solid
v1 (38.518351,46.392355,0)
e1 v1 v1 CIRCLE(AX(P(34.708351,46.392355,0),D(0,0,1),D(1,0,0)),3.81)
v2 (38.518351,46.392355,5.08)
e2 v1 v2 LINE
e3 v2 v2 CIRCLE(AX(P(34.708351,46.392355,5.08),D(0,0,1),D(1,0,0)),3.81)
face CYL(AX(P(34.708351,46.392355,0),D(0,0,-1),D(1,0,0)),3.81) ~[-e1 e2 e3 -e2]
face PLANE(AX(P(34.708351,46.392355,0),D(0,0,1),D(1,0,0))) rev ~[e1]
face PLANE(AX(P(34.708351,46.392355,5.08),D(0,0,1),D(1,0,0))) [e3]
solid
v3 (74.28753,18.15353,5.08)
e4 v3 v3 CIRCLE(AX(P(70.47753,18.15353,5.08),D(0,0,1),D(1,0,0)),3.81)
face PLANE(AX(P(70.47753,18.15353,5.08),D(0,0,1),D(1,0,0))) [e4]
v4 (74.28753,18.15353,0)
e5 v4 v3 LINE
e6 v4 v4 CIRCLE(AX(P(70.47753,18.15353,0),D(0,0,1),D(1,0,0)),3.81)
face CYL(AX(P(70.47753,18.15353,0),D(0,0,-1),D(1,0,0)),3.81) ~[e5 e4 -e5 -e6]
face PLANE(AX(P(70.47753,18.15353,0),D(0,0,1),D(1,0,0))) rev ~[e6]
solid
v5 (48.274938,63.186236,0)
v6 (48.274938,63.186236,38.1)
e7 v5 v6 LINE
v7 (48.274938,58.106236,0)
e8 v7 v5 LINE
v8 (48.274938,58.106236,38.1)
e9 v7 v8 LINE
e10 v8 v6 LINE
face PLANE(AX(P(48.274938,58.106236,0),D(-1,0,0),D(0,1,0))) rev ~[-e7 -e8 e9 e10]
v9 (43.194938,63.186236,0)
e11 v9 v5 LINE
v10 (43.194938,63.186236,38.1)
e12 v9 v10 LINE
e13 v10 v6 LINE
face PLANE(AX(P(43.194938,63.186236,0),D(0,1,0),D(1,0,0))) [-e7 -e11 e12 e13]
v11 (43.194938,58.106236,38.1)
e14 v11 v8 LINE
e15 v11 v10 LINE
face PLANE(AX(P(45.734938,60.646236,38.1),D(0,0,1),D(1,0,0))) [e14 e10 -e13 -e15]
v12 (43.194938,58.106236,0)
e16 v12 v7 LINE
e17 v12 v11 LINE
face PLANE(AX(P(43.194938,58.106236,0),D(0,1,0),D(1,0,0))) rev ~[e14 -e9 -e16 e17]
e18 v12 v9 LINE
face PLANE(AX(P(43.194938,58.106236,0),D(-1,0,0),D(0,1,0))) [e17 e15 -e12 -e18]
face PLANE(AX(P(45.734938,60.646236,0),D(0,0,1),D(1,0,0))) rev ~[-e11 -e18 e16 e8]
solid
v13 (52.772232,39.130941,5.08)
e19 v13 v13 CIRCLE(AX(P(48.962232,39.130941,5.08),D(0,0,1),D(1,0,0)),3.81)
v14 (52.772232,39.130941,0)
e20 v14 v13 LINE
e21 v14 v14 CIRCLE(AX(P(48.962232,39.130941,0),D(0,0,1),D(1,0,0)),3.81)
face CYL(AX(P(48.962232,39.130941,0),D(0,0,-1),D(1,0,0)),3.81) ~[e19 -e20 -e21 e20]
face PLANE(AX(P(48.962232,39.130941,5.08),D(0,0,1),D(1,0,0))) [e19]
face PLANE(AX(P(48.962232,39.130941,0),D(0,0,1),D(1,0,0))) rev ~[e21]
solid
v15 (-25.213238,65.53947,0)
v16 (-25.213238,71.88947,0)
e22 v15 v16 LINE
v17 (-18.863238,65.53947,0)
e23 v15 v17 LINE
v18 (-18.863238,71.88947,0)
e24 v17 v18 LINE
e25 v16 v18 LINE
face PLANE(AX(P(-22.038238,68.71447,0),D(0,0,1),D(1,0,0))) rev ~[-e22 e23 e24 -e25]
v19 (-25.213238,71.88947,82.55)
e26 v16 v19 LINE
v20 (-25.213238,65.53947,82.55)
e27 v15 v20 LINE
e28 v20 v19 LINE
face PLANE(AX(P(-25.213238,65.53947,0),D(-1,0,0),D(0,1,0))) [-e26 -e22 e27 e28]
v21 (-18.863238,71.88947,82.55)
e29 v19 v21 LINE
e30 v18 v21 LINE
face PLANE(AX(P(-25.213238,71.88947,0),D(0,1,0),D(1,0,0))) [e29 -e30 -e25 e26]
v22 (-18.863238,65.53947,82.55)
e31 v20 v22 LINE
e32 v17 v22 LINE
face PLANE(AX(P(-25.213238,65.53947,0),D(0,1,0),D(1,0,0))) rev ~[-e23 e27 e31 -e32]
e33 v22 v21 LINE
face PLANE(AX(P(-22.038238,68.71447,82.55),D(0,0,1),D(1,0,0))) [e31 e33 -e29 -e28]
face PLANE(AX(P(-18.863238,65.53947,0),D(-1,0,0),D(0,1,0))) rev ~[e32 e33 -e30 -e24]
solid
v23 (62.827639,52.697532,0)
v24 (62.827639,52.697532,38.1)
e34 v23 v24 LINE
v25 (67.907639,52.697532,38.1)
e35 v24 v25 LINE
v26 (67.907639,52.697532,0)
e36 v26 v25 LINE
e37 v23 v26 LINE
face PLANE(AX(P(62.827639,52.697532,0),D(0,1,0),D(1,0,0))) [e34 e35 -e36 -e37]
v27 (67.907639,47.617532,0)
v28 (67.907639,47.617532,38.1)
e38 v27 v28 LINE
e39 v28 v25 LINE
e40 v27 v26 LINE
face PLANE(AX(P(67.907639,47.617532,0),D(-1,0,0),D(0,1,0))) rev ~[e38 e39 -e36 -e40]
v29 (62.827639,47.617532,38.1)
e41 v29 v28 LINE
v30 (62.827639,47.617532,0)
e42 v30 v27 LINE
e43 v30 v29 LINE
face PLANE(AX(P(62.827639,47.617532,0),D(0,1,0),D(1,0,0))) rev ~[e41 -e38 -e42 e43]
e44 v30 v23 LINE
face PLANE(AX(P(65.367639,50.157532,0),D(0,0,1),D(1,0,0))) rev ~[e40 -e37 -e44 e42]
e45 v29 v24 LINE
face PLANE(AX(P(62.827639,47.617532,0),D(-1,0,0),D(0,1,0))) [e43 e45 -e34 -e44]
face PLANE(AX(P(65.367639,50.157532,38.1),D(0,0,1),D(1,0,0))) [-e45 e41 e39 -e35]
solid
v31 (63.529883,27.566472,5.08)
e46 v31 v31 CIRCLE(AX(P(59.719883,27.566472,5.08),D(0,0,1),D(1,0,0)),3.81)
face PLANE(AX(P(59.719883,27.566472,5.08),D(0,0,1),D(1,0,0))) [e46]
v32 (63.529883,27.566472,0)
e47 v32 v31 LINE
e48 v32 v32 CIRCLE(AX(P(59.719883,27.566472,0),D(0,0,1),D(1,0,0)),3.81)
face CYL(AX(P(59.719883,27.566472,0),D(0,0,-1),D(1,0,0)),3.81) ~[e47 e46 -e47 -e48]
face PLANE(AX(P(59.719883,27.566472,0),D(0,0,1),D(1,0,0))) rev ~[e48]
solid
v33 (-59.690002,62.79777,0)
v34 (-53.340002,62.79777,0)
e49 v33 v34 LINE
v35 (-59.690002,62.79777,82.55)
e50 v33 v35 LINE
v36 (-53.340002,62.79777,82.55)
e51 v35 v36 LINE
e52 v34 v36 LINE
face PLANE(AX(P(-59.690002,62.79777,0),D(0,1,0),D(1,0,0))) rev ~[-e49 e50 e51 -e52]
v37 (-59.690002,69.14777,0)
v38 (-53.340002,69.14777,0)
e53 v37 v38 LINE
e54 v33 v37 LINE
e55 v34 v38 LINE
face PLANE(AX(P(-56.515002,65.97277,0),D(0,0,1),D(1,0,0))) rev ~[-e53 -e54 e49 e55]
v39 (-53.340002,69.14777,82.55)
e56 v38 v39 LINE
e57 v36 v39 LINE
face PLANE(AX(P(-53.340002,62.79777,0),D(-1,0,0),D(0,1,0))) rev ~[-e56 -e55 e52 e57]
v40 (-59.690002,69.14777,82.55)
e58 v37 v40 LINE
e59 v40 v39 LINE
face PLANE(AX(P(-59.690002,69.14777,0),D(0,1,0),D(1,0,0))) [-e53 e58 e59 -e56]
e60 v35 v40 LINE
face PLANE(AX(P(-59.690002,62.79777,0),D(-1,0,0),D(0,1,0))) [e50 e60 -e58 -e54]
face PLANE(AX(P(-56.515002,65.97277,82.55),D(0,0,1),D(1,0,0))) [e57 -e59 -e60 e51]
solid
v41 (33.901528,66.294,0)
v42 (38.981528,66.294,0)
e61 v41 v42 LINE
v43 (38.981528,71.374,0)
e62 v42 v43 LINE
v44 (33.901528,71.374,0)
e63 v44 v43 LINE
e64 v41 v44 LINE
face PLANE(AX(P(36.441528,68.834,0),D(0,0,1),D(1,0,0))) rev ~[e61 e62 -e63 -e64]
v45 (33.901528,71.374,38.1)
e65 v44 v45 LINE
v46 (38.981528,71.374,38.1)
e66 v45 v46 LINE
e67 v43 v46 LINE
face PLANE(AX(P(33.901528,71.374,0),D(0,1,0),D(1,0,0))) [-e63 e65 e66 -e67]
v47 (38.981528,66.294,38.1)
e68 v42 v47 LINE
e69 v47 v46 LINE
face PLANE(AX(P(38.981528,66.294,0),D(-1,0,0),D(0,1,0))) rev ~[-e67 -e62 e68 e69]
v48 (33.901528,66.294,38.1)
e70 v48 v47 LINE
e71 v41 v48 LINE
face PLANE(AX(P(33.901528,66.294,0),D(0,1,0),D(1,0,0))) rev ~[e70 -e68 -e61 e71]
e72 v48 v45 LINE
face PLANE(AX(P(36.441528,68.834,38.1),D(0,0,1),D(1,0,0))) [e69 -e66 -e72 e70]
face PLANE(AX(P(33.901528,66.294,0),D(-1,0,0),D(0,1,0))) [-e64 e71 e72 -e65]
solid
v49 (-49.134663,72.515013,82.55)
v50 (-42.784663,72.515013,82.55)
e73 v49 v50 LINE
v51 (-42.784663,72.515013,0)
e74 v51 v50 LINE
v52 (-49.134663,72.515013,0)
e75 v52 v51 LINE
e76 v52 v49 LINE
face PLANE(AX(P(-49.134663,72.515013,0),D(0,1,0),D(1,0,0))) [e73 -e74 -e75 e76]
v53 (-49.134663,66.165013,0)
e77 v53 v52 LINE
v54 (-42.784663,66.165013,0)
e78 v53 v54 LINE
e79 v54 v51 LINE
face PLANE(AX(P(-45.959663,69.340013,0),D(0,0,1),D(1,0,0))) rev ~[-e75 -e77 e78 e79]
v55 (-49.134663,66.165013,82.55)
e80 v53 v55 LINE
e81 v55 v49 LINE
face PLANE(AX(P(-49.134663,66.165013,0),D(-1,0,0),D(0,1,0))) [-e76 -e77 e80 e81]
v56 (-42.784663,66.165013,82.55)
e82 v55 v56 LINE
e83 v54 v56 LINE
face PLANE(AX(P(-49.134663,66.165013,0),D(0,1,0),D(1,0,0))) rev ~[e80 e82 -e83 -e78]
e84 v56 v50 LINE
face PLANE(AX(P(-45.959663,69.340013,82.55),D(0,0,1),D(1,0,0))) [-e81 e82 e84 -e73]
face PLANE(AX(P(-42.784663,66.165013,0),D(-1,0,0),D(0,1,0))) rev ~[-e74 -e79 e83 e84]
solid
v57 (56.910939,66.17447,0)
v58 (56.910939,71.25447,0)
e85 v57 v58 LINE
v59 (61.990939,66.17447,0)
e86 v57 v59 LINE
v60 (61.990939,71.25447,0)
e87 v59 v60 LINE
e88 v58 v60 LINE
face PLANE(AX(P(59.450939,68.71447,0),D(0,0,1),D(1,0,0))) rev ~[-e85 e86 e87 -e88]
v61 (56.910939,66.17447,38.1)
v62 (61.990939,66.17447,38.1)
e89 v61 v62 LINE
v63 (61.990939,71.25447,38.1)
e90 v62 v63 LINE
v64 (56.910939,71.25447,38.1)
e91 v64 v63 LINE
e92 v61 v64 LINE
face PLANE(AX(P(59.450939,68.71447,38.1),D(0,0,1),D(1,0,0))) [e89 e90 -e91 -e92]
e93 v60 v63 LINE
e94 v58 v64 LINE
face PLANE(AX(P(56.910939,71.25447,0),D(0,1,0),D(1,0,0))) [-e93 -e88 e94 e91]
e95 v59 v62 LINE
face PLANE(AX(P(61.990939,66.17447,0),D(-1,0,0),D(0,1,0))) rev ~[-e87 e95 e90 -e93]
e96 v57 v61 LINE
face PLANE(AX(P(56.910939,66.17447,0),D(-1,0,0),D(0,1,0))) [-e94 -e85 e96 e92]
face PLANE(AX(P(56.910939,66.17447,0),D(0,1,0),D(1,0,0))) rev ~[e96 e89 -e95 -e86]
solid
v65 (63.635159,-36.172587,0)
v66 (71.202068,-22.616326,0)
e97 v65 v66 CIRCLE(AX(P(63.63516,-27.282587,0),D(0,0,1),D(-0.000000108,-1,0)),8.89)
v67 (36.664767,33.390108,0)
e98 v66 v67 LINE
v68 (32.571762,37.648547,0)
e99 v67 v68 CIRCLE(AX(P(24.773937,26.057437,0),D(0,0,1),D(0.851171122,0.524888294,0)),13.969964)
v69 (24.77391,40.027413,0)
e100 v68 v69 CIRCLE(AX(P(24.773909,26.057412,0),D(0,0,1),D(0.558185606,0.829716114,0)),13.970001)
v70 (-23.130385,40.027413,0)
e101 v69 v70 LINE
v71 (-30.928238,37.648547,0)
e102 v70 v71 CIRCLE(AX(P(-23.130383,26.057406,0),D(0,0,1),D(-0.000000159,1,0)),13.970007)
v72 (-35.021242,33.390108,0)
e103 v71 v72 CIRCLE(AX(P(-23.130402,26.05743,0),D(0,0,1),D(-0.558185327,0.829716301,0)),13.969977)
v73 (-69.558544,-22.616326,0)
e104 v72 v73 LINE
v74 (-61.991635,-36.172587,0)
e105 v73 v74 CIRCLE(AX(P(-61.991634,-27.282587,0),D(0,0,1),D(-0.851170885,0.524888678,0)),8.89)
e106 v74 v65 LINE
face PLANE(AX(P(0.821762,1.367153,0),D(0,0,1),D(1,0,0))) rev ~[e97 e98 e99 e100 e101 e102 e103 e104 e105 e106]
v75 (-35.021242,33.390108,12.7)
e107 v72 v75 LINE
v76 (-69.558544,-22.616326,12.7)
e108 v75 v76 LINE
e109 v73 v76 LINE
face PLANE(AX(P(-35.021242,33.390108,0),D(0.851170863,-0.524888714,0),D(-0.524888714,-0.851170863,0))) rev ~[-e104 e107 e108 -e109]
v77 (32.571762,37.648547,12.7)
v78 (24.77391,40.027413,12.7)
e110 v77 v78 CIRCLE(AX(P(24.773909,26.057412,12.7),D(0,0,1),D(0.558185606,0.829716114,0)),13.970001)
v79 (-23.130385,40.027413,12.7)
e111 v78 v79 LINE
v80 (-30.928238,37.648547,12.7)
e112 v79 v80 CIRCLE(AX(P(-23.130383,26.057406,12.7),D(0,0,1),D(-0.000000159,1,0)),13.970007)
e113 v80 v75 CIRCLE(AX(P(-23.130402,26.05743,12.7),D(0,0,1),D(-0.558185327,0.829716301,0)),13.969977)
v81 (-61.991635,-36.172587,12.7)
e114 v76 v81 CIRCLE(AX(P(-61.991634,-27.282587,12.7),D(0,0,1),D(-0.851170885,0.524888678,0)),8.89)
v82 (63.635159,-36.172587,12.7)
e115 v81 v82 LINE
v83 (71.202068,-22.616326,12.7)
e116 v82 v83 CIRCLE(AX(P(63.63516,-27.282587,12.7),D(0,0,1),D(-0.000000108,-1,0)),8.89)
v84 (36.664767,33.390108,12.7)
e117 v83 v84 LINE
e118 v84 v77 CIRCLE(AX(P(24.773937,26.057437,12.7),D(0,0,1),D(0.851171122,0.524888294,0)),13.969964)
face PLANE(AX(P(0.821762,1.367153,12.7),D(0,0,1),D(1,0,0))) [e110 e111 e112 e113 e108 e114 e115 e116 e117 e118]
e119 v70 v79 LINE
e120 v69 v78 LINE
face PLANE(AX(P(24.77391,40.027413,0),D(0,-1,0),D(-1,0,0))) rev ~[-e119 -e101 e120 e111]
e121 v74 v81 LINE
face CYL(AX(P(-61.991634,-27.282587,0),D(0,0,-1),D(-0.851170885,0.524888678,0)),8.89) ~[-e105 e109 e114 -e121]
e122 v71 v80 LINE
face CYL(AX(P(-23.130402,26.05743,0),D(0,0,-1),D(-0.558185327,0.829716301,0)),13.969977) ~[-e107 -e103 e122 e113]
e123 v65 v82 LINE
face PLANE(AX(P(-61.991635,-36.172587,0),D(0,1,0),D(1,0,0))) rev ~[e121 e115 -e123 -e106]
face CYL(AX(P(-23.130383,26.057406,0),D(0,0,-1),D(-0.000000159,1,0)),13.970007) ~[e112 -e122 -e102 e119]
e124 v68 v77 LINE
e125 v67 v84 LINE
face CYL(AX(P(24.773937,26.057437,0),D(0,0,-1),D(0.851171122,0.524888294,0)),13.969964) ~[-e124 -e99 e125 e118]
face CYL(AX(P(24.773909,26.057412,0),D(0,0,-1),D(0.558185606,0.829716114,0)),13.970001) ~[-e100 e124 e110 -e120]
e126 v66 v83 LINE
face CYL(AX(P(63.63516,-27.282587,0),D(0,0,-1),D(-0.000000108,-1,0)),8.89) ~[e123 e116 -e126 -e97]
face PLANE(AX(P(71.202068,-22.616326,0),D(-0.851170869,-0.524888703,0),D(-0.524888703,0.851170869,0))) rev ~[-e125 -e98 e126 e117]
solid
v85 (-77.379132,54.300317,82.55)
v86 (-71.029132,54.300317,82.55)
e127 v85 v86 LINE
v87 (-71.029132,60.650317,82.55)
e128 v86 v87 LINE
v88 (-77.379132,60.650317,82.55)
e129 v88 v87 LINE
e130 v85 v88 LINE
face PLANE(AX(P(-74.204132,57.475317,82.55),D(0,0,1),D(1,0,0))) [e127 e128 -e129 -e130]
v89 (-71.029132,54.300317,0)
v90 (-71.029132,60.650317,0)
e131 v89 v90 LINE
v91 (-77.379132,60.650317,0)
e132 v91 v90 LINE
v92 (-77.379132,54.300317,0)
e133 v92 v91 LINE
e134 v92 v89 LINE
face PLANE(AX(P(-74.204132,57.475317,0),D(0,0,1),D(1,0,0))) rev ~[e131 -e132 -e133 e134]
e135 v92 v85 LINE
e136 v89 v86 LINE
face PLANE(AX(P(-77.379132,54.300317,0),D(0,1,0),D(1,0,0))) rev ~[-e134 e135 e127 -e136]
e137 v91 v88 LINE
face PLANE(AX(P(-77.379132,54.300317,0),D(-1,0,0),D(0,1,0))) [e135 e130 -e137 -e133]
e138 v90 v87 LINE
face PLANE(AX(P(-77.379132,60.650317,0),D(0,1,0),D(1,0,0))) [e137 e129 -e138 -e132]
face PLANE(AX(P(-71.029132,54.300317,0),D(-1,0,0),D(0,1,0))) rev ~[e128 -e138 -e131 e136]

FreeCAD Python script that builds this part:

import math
import FreeCAD as App
import Part
import Sketcher

V = App.Vector
Q = App.Units.Quantity


def add_polygon(sketch, points):
    """Adds a closed chain of lines whose ends are joined by coincident constraints."""
    first, n = sketch.GeometryCount, len(points)
    for a, b in zip(points, points[1:] + points[:1]):
        sketch.addGeometry(Part.LineSegment(App.Vector(*a, 0), App.Vector(*b, 0)), False)
    for i in range(n):
        sketch.addConstraint(Sketcher.Constraint("Coincident", first + i, 2, first + (i + 1) % n, 1))

doc = App.newDocument("Part")
body = doc.addObject("PartDesign::Body", "Body")

sketch1 = doc.addObject("Sketcher::SketchObject", "Sketch")
body.addObject(sketch1)
sketch1.AttachmentSupport = (doc.XY_Plane, [""])
sketch1.MapMode = "FlatFace"
sketch1.addGeometry([
    Part.LineSegment(V(24.77391, 40.027413, 0), V(-23.130385, 40.027413, 0)),
    Part.ArcOfCircle(Part.Circle(V(-23.130383, 26.057406, 0), V(0, 0, 1), 13.970007), math.radians(90.000009), math.radians(123.930405)),
    Part.ArcOfCircle(Part.Circle(V(-23.130402, 26.05743, 0), V(0, 0, 1), 13.969977), math.radians(123.930394), math.radians(148.339271)),
    Part.LineSegment(V(-35.021242, 33.390108, 0), V(-69.558544, -22.616326, 0)),
    Part.ArcOfCircle(Part.Circle(V(-61.991634, -27.282587, 0), V(0, 0, 1), 8.89), math.radians(148.339251), math.radians(269.999997)),
    Part.LineSegment(V(-61.991635, -36.172587, 0), V(63.635159, -36.172587, 0)),
    Part.ArcOfCircle(Part.Circle(V(63.63516, -27.282587, 0), V(0, 0, 1), 8.89), math.radians(-90.000006), math.radians(31.660759)),
    Part.LineSegment(V(71.202068, -22.616326, 0), V(36.664767, 33.390108, 0)),
    Part.ArcOfCircle(Part.Circle(V(24.773937, 26.057437, 0), V(0, 0, 1), 13.969964), math.radians(31.660724), math.radians(56.069626)),
    Part.ArcOfCircle(Part.Circle(V(24.773909, 26.057412, 0), V(0, 0, 1), 13.970001), math.radians(56.069587), math.radians(89.999995)),
], False)
sketch1.addConstraint([
    Sketcher.Constraint("Tangent", 0, 2, 1, 1),
    Sketcher.Constraint("Tangent", 1, 2, 2, 1),
    Sketcher.Constraint("Tangent", 2, 2, 3, 1),
    Sketcher.Constraint("Tangent", 3, 2, 4, 1),
    Sketcher.Constraint("Tangent", 4, 2, 5, 1),
    Sketcher.Constraint("Tangent", 5, 2, 6, 1),
    Sketcher.Constraint("Tangent", 6, 2, 7, 1),
    Sketcher.Constraint("Tangent", 7, 2, 8, 1),
    Sketcher.Constraint("Tangent", 8, 2, 9, 1),
    Sketcher.Constraint("Tangent", 9, 2, 0, 1),
    Sketcher.Constraint("Horizontal", 0),
    Sketcher.Constraint("Horizontal", 5),
    Sketcher.Constraint("Equal", 4, 6),
    Sketcher.Constraint("Horizontal", 3, 2, 6, 2),
    Sketcher.Constraint("Horizontal", 2, 2, 7, 2),
    Sketcher.Constraint("Horizontal", 1, 2, 8, 2),
    Sketcher.Constraint("Radius", 4, Q("0.35 in")),
    Sketcher.Constraint("Radius", 9, Q("0.55 in")),
    Sketcher.Constraint("DistanceY", 6, 3, 9, 3, Q("2.1 in")),
    Sketcher.Constraint("Radius", 1, 13.970007),
    Sketcher.Constraint("Radius", 2, 13.969977),
    Sketcher.Constraint("DistanceX", 3, 2, 2, 2, 34.537302),
    Sketcher.Constraint("DistanceX", 0, 2, 0, 1, 47.904295),
    Sketcher.Constraint("DistanceY", -1, 1, 2, 3, 26.05743),
    Sketcher.Constraint("DistanceX", -1, 1, 6, 3, 63.63516),
    Sketcher.Constraint("DistanceX", 1, 2, -1, 1, 30.928238),
])
pad1 = doc.addObject("PartDesign::Pad", "Pad")
body.addObject(pad1)
pad1.Profile = sketch1
pad1.Length = Q("0.5 in")
body2 = doc.addObject("PartDesign::Body", "Body001")
body2.AllowCompound = True

sketch2 = doc.addObject("Sketcher::SketchObject", "Sketch001")
body2.addObject(sketch2)
sketch2.AttachmentSupport = (doc.getObject("XY_Plane001"), [""])
sketch2.MapMode = "FlatFace"
add_polygon(sketch2, [(-59.690002, 69.14777), (-59.690002, 62.79777), (-53.340002, 62.79777), (-53.340002, 69.14777)])
add_polygon(sketch2, [(-49.134663, 72.515013), (-49.134663, 66.165013), (-42.784663, 66.165013), (-42.784663, 72.515013)])
add_polygon(sketch2, [(-77.379132, 60.650317), (-77.379132, 54.300317), (-71.029132, 54.300317), (-71.029132, 60.650317)])
add_polygon(sketch2, [(-25.213238, 71.88947), (-25.213238, 65.53947), (-18.863238, 65.53947), (-18.863238, 71.88947)])
sketch2.addConstraint([
    Sketcher.Constraint("Vertical", 0),
    Sketcher.Constraint("Horizontal", 1),
    Sketcher.Constraint("Vertical", 2),
    Sketcher.Constraint("Horizontal", 3),
    Sketcher.Constraint("Vertical", 4),
    Sketcher.Constraint("Horizontal", 5),
    Sketcher.Constraint("Vertical", 6),
    Sketcher.Constraint("Horizontal", 7),
    Sketcher.Constraint("Vertical", 8),
    Sketcher.Constraint("Horizontal", 9),
    Sketcher.Constraint("Vertical", 10),
    Sketcher.Constraint("Horizontal", 11),
    Sketcher.Constraint("Vertical", 12),
    Sketcher.Constraint("Horizontal", 13),
    Sketcher.Constraint("Vertical", 14),
    Sketcher.Constraint("Horizontal", 15),
    Sketcher.Constraint("Equal", 3, 5),
    Sketcher.Constraint("Equal", 7, 9),
    Sketcher.Constraint("Equal", 11, 13),
    Sketcher.Constraint("Equal", 15, 0),
    Sketcher.Constraint("Equal", 2, 4),
    Sketcher.Constraint("Equal", 6, 8),
    Sketcher.Constraint("Equal", 10, 12),
    Sketcher.Constraint("DistanceX", 1, 1, 1, 2, Q("0.25 in")),
    Sketcher.Constraint("DistanceX", 1, 2, -1, 1, Q("2.1000001 in")),
    Sketcher.Constraint("DistanceY", 1, 2, 12, 2, 2.7417),
    Sketcher.Constraint("DistanceY", -1, 1, 0, 2, 62.79777),
    Sketcher.Constraint("DistanceX", 8, 2, -1, 1, 77.379132),
    Sketcher.Constraint("DistanceX", 12, 2, -1, 1, 25.213238),
    Sketcher.Constraint("DistanceX", 2, 2, 4, 2, 4.205339),
    Sketcher.Constraint("DistanceY", -1, 1, 4, 2, 66.165013),
    Sketcher.Constraint("DistanceY", -1, 1, 8, 2, 54.300317),
])
pad2 = doc.addObject("PartDesign::Pad", "Pad001")
body2.addObject(pad2)
pad2.Profile = sketch2
pad2.Length = Q("3.25 in")
body3 = doc.addObject("PartDesign::Body", "Body002")
body3.AllowCompound = True

sketch3 = doc.addObject("Sketcher::SketchObject", "Sketch002")
body3.addObject(sketch3)
sketch3.AttachmentSupport = (doc.getObject("XY_Plane002"), [""])
sketch3.MapMode = "FlatFace"
add_polygon(sketch3, [(33.901528, 71.374), (33.901528, 66.294), (38.981528, 66.294), (38.981528, 71.374)])
add_polygon(sketch3, [(56.910939, 71.25447), (56.910939, 66.17447), (61.990939, 66.17447), (61.990939, 71.25447)])
add_polygon(sketch3, [(43.194938, 63.186236), (43.194938, 58.106236), (48.274938, 58.106236), (48.274938, 63.186236)])
add_polygon(sketch3, [(62.827639, 52.697532), (62.827639, 47.617532), (67.907639, 47.617532), (67.907639, 52.697532)])
sketch3.addConstraint([
    Sketcher.Constraint("Vertical", 0),
    Sketcher.Constraint("Horizontal", 1),
    Sketcher.Constraint("Vertical", 2),
    Sketcher.Constraint("Horizontal", 3),
    Sketcher.Constraint("Vertical", 4),
    Sketcher.Constraint("Horizontal", 5),
    Sketcher.Constraint("Vertical", 6),
    Sketcher.Constraint("Horizontal", 7),
    Sketcher.Constraint("Vertical", 8),
    Sketcher.Constraint("Horizontal", 9),
    Sketcher.Constraint("Vertical", 10),
    Sketcher.Constraint("Horizontal", 11),
    Sketcher.Constraint("Vertical", 12),
    Sketcher.Constraint("Horizontal", 13),
    Sketcher.Constraint("Vertical", 14),
    Sketcher.Constraint("Horizontal", 15),
    Sketcher.Constraint("Equal", 3, 5),
    Sketcher.Constraint("Equal", 7, 9),
    Sketcher.Constraint("Equal", 11, 13),
    Sketcher.Constraint("Equal", 15, 0),
    Sketcher.Constraint("Equal", 2, 4),
    Sketcher.Constraint("Equal", 6, 8),
    Sketcher.Constraint("Equal", 10, 12),
    Sketcher.Constraint("DistanceX", 1, 1, 1, 2, Q("0.2 in")),
    Sketcher.Constraint("DistanceY", -1, 1, 0, 2, Q("2.61 in")),
    Sketcher.Constraint("DistanceX", 8, 2, 4, 2, Q("0.54 in")),
    Sketcher.Constraint("DistanceX", 9, 2, 12, 2, 14.552701),
    Sketcher.Constraint("DistanceX", -1, 1, 4, 2, 56.910939),
    Sketcher.Constraint("DistanceY", -1, 1, 4, 2, 66.17447),
    Sketcher.Constraint("DistanceY", -1, 1, 12, 2, 47.617532),
    Sketcher.Constraint("DistanceX", 1, 2, 4, 2, 17.929411),
    Sketcher.Constraint("DistanceY", -1, 1, 8, 2, 58.106236),
])
pad3 = doc.addObject("PartDesign::Pad", "Pad002")
body3.addObject(pad3)
pad3.Profile = sketch3
pad3.Length = Q("1.5 in")
body4 = doc.addObject("PartDesign::Body", "Body003")
body4.AllowCompound = True

sketch4 = doc.addObject("Sketcher::SketchObject", "Sketch003")
body4.addObject(sketch4)
sketch4.AttachmentSupport = (doc.getObject("XY_Plane003"), [""])
sketch4.MapMode = "FlatFace"
sketch4.addGeometry([
    Part.Circle(V(34.708351, 46.392355, 0), V(0, 0, 1), 3.81),
    Part.Circle(V(48.962232, 39.130941, 0), V(0, 0, 1), 3.81),
    Part.Circle(V(59.719883, 27.566472, 0), V(0, 0, 1), 3.81),
    Part.Circle(V(70.47753, 18.15353, 0), V(0, 0, 1), 3.81),
], False)
sketch4.addConstraint([
    Sketcher.Constraint("Equal", 0, 1),
    Sketcher.Constraint("Equal", 1, 2),
    Sketcher.Constraint("Equal", 2, 3),
    Sketcher.Constraint("Diameter", 0, Q("0.3 in")),
    Sketcher.Constraint("DistanceX", 1, 3, 3, 3, 21.515298),
    Sketcher.Constraint("DistanceX", -1, 1, 0, 3, 34.708351),
    Sketcher.Constraint("DistanceY", -1, 1, 1, 3, 39.130941),
    Sketcher.Constraint("DistanceX", -1, 1, 3, 3, 70.47753),
    Sketcher.Constraint("DistanceY", -1, 1, 3, 3, 18.15353),
    Sketcher.Constraint("DistanceX", 1, 3, 2, 3, 10.757651),
    Sketcher.Constraint("DistanceY", 2, 3, 1, 3, 11.564469),
    Sketcher.Constraint("DistanceY", -1, 1, 0, 3, 46.392355),
])
pad4 = doc.addObject("PartDesign::Pad", "Pad003")
body4.addObject(pad4)
pad4.Profile = sketch4
pad4.Length = Q("0.2 in")

doc.recompute()
